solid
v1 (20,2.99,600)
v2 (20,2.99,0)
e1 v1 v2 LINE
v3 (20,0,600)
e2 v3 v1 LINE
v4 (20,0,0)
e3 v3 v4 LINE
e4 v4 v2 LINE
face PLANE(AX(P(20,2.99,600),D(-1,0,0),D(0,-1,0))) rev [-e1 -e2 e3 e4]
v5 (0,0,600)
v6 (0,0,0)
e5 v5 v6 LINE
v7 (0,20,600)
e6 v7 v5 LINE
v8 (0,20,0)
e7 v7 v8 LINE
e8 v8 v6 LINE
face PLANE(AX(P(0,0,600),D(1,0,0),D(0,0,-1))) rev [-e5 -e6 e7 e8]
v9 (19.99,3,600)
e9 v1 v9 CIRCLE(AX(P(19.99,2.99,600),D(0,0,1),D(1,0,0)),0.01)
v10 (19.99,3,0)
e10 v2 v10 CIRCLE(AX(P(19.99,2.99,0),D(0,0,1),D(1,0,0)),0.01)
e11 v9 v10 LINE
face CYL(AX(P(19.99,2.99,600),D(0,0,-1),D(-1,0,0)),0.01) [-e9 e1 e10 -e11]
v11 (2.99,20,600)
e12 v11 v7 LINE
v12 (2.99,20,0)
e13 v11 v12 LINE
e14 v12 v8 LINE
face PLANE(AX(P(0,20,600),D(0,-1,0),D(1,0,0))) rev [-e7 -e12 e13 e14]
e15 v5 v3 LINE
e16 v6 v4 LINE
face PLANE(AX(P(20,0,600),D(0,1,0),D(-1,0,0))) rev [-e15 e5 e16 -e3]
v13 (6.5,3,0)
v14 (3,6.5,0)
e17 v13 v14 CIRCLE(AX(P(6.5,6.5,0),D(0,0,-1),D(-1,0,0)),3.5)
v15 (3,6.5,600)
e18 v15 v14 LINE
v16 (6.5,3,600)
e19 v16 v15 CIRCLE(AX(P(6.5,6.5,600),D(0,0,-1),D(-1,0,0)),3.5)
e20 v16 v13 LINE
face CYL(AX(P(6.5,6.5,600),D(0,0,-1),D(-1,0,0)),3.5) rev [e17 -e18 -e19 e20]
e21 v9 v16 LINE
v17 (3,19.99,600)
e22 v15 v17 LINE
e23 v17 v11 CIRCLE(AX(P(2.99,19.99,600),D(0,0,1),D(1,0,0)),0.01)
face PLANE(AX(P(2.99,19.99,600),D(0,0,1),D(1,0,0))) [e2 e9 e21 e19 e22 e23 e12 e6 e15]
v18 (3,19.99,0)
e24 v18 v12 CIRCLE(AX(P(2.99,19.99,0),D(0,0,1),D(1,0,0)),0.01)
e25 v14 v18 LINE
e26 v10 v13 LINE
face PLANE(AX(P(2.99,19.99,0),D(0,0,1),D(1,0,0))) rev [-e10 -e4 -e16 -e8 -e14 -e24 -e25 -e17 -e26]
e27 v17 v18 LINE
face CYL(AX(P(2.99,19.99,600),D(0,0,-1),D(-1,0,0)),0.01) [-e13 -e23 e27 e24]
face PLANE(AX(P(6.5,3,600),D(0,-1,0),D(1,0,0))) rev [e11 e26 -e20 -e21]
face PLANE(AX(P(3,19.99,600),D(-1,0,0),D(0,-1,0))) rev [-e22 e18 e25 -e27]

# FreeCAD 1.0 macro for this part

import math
import FreeCAD as App
import Part
import Sketcher
from FreeCAD import Vector
Q = App.Units.Quantity

doc = App.newDocument("Part")
body = doc.addObject("PartDesign::Body", "Body")

sketch1 = doc.addObject("Sketcher::SketchObject", "Sketch")
body.addObject(sketch1)
sketch1.AttachmentSupport = (doc.XY_Plane, [""])
sketch1.MapMode = "FlatFace"
sketch1.addGeometry(Part.LineSegment(Vector(0, 20, 0), Vector(0, 0, 0)), False)
sketch1.addGeometry(Part.LineSegment(Vector(0, 0, 0), Vector(20, 0, 0)), False)
sketch1.addGeometry(Part.LineSegment(Vector(20, 0, 0), Vector(20, 2.99, 0)), False)
sketch1.addGeometry(Part.ArcOfCircle(Part.Circle(Vector(19.99, 2.99, 0), Vector(0, 0, 1), 0.01), math.radians(-0.000006), math.radians(90.000006)), False)
sketch1.addGeometry(Part.LineSegment(Vector(19.99, 3, 0), Vector(6.5, 3, 0)), False)
sketch1.addGeometry(Part.ArcOfCircle(Part.Circle(Vector(6.5, 6.5, 0), Vector(0, 0, 1), 3.5), math.radians(-180), math.radians(-90)), False)
sketch1.addGeometry(Part.LineSegment(Vector(3, 6.5, 0), Vector(3, 19.99, 0)), False)
sketch1.addGeometry(Part.ArcOfCircle(Part.Circle(Vector(2.99, 19.99, 0), Vector(0, 0, 1), 0.01), math.radians(-0.000006), math.radians(90.000006)), False)
sketch1.addGeometry(Part.LineSegment(Vector(2.99, 20, 0), Vector(0, 20, 0)), False)
sketch1.addConstraint(Sketcher.Constraint("Coincident", 0, 2, 1, 1))
sketch1.addConstraint(Sketcher.Constraint("Coincident", 1, 2, 2, 1))
sketch1.addConstraint(Sketcher.Constraint("Tangent", 2, 2, 3, 1))
sketch1.addConstraint(Sketcher.Constraint("Tangent", 3, 2, 4, 1))
sketch1.addConstraint(Sketcher.Constraint("Tangent", 4, 2, 5, 2))
sketch1.addConstraint(Sketcher.Constraint("Tangent", 5, 1, 6, 1))
sketch1.addConstraint(Sketcher.Constraint("Tangent", 6, 2, 7, 1))
sketch1.addConstraint(Sketcher.Constraint("Tangent", 7, 2, 8, 1))
sketch1.addConstraint(Sketcher.Constraint("Coincident", 8, 2, 0, 1))
sketch1.addConstraint(Sketcher.Constraint("Vertical", 0))
sketch1.addConstraint(Sketcher.Constraint("Horizontal", 1))
sketch1.addConstraint(Sketcher.Constraint("Vertical", 2))
sketch1.addConstraint(Sketcher.Constraint("Horizontal", 4))
sketch1.addConstraint(Sketcher.Constraint("Vertical", 6))
sketch1.addConstraint(Sketcher.Constraint("Horizontal", 8))
sketch1.addConstraint(Sketcher.Constraint("Coincident", 0, 2, -1, 1))
sketch1.addConstraint(Sketcher.Constraint("Equal", 3, 7))
sketch1.addConstraint(Sketcher.Constraint("Equal", 1, 0))
sketch1.addConstraint(Sketcher.Constraint("Equal", 8, 2))
sketch1.addConstraint(Sketcher.Constraint("Radius", 5, Q("3.5 mm")))
sketch1.addConstraint(Sketcher.Constraint("DistanceX", 1, 1, 1, 2, Q("20 mm")))
sketch1.addConstraint(Sketcher.Constraint("Radius", 3, Q("0.01 mm")))
sketch1.addConstraint(Sketcher.Constraint("DistanceY", -1, 1, 3, 2, Q("3 mm")))
pad1 = doc.addObject("PartDesign::Pad", "Pad")
body.addObject(pad1)
pad1.Profile = sketch1
pad1.Length = 600

doc.recompute()
